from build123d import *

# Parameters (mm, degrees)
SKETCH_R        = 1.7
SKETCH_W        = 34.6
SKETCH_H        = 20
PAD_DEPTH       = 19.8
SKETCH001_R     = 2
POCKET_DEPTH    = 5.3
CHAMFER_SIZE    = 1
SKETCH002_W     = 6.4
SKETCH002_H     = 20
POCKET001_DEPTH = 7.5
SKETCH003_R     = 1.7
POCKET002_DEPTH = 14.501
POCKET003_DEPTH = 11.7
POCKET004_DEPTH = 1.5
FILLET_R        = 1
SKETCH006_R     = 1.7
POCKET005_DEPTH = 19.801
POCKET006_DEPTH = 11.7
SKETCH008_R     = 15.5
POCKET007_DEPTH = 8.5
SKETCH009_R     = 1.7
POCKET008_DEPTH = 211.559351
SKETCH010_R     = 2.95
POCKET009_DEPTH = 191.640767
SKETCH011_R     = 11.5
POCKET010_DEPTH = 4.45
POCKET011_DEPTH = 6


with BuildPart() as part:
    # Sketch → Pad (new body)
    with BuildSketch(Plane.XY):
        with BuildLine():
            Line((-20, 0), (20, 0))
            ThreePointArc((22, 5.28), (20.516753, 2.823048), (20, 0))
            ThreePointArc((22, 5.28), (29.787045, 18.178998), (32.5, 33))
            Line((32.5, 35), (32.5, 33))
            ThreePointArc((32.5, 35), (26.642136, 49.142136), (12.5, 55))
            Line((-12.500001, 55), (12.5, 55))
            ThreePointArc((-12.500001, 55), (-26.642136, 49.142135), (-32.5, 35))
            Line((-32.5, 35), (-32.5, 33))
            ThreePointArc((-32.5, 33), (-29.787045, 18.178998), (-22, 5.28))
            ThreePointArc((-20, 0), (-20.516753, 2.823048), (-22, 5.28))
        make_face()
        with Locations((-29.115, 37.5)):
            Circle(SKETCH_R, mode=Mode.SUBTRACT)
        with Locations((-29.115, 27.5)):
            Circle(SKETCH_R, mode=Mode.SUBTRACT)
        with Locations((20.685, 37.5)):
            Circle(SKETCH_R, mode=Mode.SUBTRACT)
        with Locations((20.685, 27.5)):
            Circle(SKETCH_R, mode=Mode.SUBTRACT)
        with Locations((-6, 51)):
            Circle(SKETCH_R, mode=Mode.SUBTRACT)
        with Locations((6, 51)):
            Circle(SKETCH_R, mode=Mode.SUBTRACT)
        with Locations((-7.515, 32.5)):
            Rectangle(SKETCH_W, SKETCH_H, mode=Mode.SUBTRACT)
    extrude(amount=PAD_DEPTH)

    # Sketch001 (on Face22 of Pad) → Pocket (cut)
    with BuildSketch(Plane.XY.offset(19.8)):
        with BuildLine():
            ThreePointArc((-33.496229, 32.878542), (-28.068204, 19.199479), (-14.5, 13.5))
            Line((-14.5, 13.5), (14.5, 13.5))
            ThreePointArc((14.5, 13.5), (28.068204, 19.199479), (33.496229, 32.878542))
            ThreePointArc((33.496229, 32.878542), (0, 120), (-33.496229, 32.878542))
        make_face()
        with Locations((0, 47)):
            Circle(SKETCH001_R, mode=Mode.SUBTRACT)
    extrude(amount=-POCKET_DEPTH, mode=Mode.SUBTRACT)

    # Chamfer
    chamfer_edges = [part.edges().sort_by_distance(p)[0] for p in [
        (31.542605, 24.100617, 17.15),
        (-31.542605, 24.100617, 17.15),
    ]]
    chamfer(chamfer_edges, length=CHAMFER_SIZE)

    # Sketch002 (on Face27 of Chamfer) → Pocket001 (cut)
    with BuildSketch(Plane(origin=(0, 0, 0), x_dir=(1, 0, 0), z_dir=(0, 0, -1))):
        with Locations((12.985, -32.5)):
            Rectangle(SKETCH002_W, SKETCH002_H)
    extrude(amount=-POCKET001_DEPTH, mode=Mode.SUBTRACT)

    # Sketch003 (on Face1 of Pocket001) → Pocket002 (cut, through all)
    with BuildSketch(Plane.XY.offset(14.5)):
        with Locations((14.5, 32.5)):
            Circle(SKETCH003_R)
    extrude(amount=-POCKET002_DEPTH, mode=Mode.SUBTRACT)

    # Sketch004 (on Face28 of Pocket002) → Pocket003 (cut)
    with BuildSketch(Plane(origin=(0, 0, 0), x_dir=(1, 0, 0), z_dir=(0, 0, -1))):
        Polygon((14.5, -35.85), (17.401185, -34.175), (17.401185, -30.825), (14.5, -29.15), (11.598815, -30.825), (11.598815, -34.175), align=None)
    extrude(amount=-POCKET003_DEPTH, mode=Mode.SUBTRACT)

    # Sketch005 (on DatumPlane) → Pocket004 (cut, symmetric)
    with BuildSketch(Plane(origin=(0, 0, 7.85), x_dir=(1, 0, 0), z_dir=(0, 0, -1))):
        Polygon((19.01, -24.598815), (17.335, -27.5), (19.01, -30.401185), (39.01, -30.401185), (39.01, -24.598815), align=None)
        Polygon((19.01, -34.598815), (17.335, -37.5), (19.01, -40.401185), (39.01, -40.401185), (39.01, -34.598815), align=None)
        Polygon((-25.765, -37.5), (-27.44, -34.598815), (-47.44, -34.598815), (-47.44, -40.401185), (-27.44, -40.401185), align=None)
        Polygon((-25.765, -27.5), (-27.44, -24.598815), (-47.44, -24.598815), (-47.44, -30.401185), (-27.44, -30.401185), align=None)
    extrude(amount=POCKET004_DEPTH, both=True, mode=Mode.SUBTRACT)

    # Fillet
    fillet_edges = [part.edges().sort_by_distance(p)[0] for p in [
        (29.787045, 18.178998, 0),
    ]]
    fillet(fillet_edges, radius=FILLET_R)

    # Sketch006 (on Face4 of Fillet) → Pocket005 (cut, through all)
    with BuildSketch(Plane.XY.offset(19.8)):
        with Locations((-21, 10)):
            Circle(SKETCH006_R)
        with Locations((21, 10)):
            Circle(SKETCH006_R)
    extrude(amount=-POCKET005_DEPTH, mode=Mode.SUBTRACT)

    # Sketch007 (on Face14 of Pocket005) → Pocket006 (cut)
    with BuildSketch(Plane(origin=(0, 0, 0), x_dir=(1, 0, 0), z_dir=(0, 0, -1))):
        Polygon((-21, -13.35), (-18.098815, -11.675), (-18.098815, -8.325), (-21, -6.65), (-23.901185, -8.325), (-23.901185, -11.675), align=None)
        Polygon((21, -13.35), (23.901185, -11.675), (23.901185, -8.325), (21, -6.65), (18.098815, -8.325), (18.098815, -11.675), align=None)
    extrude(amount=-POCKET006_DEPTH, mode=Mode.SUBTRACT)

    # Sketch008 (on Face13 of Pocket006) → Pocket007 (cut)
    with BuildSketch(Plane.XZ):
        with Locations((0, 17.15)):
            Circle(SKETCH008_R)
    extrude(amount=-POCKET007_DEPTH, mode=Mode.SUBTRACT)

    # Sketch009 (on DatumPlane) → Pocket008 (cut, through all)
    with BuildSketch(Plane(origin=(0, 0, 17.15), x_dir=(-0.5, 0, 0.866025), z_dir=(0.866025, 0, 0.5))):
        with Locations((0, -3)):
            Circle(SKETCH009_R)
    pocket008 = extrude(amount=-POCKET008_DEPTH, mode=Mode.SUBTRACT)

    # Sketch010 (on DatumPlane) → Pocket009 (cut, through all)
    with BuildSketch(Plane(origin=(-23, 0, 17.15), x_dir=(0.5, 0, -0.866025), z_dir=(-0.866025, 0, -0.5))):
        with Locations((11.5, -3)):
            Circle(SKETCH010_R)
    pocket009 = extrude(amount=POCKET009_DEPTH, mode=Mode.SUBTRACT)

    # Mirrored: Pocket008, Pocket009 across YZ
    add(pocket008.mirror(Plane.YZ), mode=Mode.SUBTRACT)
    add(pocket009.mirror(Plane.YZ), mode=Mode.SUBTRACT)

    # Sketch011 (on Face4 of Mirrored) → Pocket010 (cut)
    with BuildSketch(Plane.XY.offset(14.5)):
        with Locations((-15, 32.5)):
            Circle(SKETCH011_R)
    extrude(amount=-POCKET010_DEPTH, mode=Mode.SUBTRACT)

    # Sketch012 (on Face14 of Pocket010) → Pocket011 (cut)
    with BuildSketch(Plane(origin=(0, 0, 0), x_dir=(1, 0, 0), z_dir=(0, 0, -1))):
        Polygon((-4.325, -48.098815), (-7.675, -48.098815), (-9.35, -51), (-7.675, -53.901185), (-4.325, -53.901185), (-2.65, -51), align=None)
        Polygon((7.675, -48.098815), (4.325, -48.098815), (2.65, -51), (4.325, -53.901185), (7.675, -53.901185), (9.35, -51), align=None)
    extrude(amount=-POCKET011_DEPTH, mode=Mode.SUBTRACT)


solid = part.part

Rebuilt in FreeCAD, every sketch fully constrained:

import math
import FreeCAD as App
import Part
import Sketcher

V = App.Vector
Q = App.Units.Quantity


def edges_at(feature, points):
    """Names of the edges that pass closest to the given points."""
    edges = feature.Shape.Edges
    near = lambda p: min(range(len(edges)), key=lambda i: edges[i].distToShape(Part.Vertex(*p))[0])
    return sorted({f"Edge{near(p) + 1}" for p in points})

doc = App.newDocument("Part")
body = doc.addObject("PartDesign::Body", "Body")

# Sketch on XY plane
sketch1 = body.newObject("Sketcher::SketchObject", "Sketch")
sketch1.AttachmentSupport = (doc.getObject("XY_Plane"), [""])
sketch1.MapMode = "FlatFace"
sketch1.addGeometry([
    Part.LineSegment(V(-20, 0, 0), V(20, 0, 0)),  # 0
    Part.ArcOfCircle(Part.Circle(V(27.969596, 0.000001, 0), V(0, 0, 1), 7.969596), math.radians(138.507829), math.radians(180.00001)),  # 1
    Part.ArcOfCircle(Part.Circle(V(-9.340403, 33.000001, 0), V(0, 0, 1), 41.840403), math.radians(-41.492159), math.radians(-0.000002)),  # 2
    Part.LineSegment(V(32.5, 33, 0), V(32.5, 35, 0)),  # 3
    Part.ArcOfCircle(Part.Circle(V(12.500001, 35.000001, 0), V(0, 0, 1), 19.999999), math.radians(-0.000004), math.radians(90.000004)),  # 4
    Part.LineSegment(V(12.5, 55, 0), V(-12.500001, 55, 0)),  # 5
    Part.ArcOfCircle(Part.Circle(V(-12.5, 35, 0), V(0, 0, 1), 20), math.radians(90.000004), math.radians(179.999999)),  # 6
    Part.LineSegment(V(-32.5, 35, 0), V(-32.5, 33, 0)),  # 7
    Part.ArcOfCircle(Part.Circle(V(9.340403, 33.000001, 0), V(0, 0, 1), 41.840403), math.radians(-179.999998), math.radians(-138.507841)),  # 8
    Part.ArcOfCircle(Part.Circle(V(-27.969596, 0.000001, 0), V(0, 0, 1), 7.969596), math.radians(-0.00001), math.radians(41.492171)),  # 9
    Part.Circle(V(-29.115, 27.5, 0), V(0, 0, 1), 1.7),  # 10
    Part.Circle(V(-29.115, 37.5, 0), V(0, 0, 1), 1.7),  # 11
    Part.LineSegment(V(9.785, 22.5, 0), V(-24.815, 22.5, 0)),  # 12
    Part.LineSegment(V(-24.815, 22.5, 0), V(-24.815, 42.5, 0)),  # 13
    Part.LineSegment(V(-24.815, 42.5, 0), V(9.785, 42.5, 0)),  # 14
    Part.LineSegment(V(9.785, 42.5, 0), V(9.785, 22.5, 0)),  # 15
    Part.Circle(V(20.685, 27.5, 0), V(0, 0, 1), 1.7),  # 16
    Part.Circle(V(20.685, 37.5, 0), V(0, 0, 1), 1.7),  # 17
    Part.Circle(V(-6, 51, 0), V(0, 0, 1), 1.7),  # 18
    Part.Circle(V(6, 51, 0), V(0, 0, 1), 1.7),  # 19
], False)
sketch1.addConstraint([
    Sketcher.Constraint("Coincident", 0, 2, 1, 2),
    Sketcher.Constraint("Tangent", 1, 1, 2, 1),
    Sketcher.Constraint("Tangent", 2, 2, 3, 1),
    Sketcher.Constraint("Tangent", 3, 2, 4, 1),
    Sketcher.Constraint("Tangent", 4, 2, 5, 1),
    Sketcher.Constraint("Tangent", 5, 2, 6, 1),
    Sketcher.Constraint("Tangent", 6, 2, 7, 1),
    Sketcher.Constraint("Tangent", 7, 2, 8, 1),
    Sketcher.Constraint("Tangent", 8, 2, 9, 2),
    Sketcher.Constraint("Coincident", 9, 1, 0, 1),
    Sketcher.Constraint("Coincident", 12, 2, 13, 1),
    Sketcher.Constraint("Coincident", 13, 2, 14, 1),
    Sketcher.Constraint("Coincident", 14, 2, 15, 1),
    Sketcher.Constraint("Coincident", 15, 2, 12, 1),
    Sketcher.Constraint("Horizontal", 0),
    Sketcher.Constraint("Vertical", 3),
    Sketcher.Constraint("Horizontal", 5),
    Sketcher.Constraint("Vertical", 7),
    Sketcher.Constraint("Horizontal", 12),
    Sketcher.Constraint("Vertical", 13),
    Sketcher.Constraint("Horizontal", 14),
    Sketcher.Constraint("Vertical", 15),
    Sketcher.Constraint("Equal", 4, 6),
    Sketcher.Constraint("Equal", 2, 8),
    Sketcher.Constraint("Equal", 1, 9),
    Sketcher.Constraint("Equal", 10, 11),
    Sketcher.Constraint("Equal", 11, 16),
    Sketcher.Constraint("Equal", 16, 17),
    Sketcher.Constraint("Equal", 17, 18),
    Sketcher.Constraint("Equal", 18, 19),
    Sketcher.Constraint("Symmetric", 1, 3, 9, 3, -1, 1),
    Sketcher.Constraint("Symmetric", 2, 3, 8, 3, -2),
    Sketcher.Constraint("Symmetric", 18, 3, 19, 3, -2),
    Sketcher.Constraint("PointOnObject", 0, 2, -1),
    Sketcher.Constraint("Horizontal", 10, 3, 16, 3),
    Sketcher.Constraint("Horizontal", 11, 3, 17, 3),
    Sketcher.Constraint("Vertical", 10, 3, 11, 3),
    Sketcher.Constraint("Vertical", 16, 3, 17, 3),
    Sketcher.Constraint("Radius", 4, Q("19.999999 mm")),
    Sketcher.Constraint("Diameter", 10, Q("3.4 mm")),
    Sketcher.Constraint("DistanceX", 0, 1, 0, 2, Q("40 mm")),
    Sketcher.Constraint("DistanceX", 5, 2, 5, 1, Q("25.000001 mm")),
    Sketcher.Constraint("DistanceY", 3, 1, 3, 2, Q("2 mm")),
    Sketcher.Constraint("DistanceY", 13, 1, 13, 2, Q("20 mm")),
    Sketcher.Constraint("DistanceX", 12, 2, 12, 1, Q("34.6 mm")),
    Sketcher.Constraint("DistanceY", -1, 1, 2, 3, Q("33.000001 mm")),
    Sketcher.Constraint("DistanceX", 18, 3, -1, 1, Q("6 mm")),
    Sketcher.Constraint("DistanceY", -1, 1, 18, 3, Q("51 mm")),
    Sketcher.Constraint("DistanceX", -1, 1, 1, 1, Q("22 mm")),
    Sketcher.Constraint("DistanceY", 10, 3, 11, 3, Q("10 mm")),
    Sketcher.Constraint("DistanceY", 12, 2, 10, 3, Q("5 mm")),
    Sketcher.Constraint("DistanceY", -1, 1, 10, 3, Q("27.5 mm")),
    Sketcher.Constraint("DistanceX", 10, 3, 12, 2, Q("4.3 mm")),
    Sketcher.Constraint("DistanceX", 14, 2, 17, 3, Q("10.9 mm")),
    Sketcher.Constraint("DistanceX", 10, 3, -1, 1, Q("29.115 mm")),
])
pad1 = body.newObject("PartDesign::Pad", "Pad")
pad1.Profile = sketch1
pad1.Length = 19.8

# Sketch on XY plane
sketch2 = body.newObject("Sketcher::SketchObject", "Sketch001")
sketch2.AttachmentSupport = (doc.getObject("XY_Plane"), [""])
sketch2.MapMode = "FlatFace"
sketch2.AttachmentOffset = App.Placement(V(0, 0, 19.8), App.Rotation())
sketch2.addGeometry([
    Part.ArcOfCircle(Part.Circle(V(-14.500001, 32.499999, 0), V(0, 0, 1), 18.999999), math.radians(178.858403), math.radians(270.000003)),  # 0
    Part.LineSegment(V(-14.5, 13.5, 0), V(14.5, 13.5, 0)),  # 1
    Part.ArcOfCircle(Part.Circle(V(14.500001, 32.499999, 0), V(0, 0, 1), 18.999999), math.radians(-90.000003), math.radians(1.141597)),  # 2
    Part.ArcOfCircle(Part.Circle(V(0, 70, 0), V(0, 0, 1), 50), math.radians(-47.938756), math.radians(227.938756)),  # 3
    Part.Circle(V(0, 47, 0), V(0, 0, 1), 2),  # 4
], False)
sketch2.addConstraint([
    Sketcher.Constraint("Tangent", 0, 2, 1, 1),
    Sketcher.Constraint("Tangent", 1, 2, 2, 1),
    Sketcher.Constraint("Coincident", 2, 2, 3, 1),
    Sketcher.Constraint("Coincident", 3, 2, 0, 1),
    Sketcher.Constraint("Horizontal", 1),
    Sketcher.Constraint("Equal", 0, 2),
    Sketcher.Constraint("Symmetric", 2, 2, 3, 2, -2),
    Sketcher.Constraint("PointOnObject", 4, 3, -2),
    Sketcher.Constraint("Diameter", 4, Q("4 mm")),
    Sketcher.Constraint("Radius", 0, Q("18.999999 mm")),
    Sketcher.Constraint("Radius", 3, Q("50 mm")),
    Sketcher.Constraint("DistanceX", 1, 1, 1, 2, Q("29 mm")),
    Sketcher.Constraint("DistanceY", -1, 1, 3, 3, Q("70 mm")),
    Sketcher.Constraint("DistanceY", -1, 1, 4, 3, Q("47 mm")),
    Sketcher.Constraint("DistanceY", -1, 1, 0, 3, Q("32.499999 mm")),
])
pocket1 = body.newObject("PartDesign::Pocket", "Pocket")
pocket1.Profile = sketch2
pocket1.Length = 5.3
doc.recompute()

chamfer = body.newObject("PartDesign::Chamfer", "Chamfer")
chamfer.Base = (pocket1, edges_at(pocket1, [(31.543, 24.101, 17.15), (-31.543, 24.101, 17.15)]))
chamfer.Size = 1

# Sketch on XY plane
sketch3 = body.newObject("Sketcher::SketchObject", "Sketch002")
sketch3.AttachmentSupport = (doc.getObject("XY_Plane"), [""])
sketch3.MapMode = "FlatFace"
sketch3.addGeometry([
    Part.LineSegment(V(9.785, 22.5, 0), V(9.785, 42.5, 0)),
    Part.LineSegment(V(9.785, 42.5, 0), V(16.185, 42.5, 0)),
    Part.LineSegment(V(16.185, 42.5, 0), V(16.185, 22.5, 0)),
    Part.LineSegment(V(16.185, 22.5, 0), V(9.785, 22.5, 0)),
], False)
sketch3.addConstraint([
    Sketcher.Constraint("Coincident", 0, 2, 1, 1),
    Sketcher.Constraint("Coincident", 1, 2, 2, 1),
    Sketcher.Constraint("Coincident", 2, 2, 3, 1),
    Sketcher.Constraint("Coincident", 3, 2, 0, 1),
    Sketcher.Constraint("Vertical", 0),
    Sketcher.Constraint("Horizontal", 1),
    Sketcher.Constraint("Vertical", 2),
    Sketcher.Constraint("Horizontal", 3),
    Sketcher.Constraint("DistanceY", 0, 1, 0, 2, Q("20 mm")),
    Sketcher.Constraint("DistanceX", 1, 1, 1, 2, Q("6.4 mm")),
    Sketcher.Constraint("DistanceY", -1, 1, 0, 2, Q("42.5 mm")),
    Sketcher.Constraint("DistanceX", -1, 1, 0, 2, Q("9.785 mm")),
])
pocket2 = body.newObject("PartDesign::Pocket", "Pocket001")
pocket2.Profile = sketch3
pocket2.Length = 7.5
pocket2.Reversed = True

# Sketch on XY plane
sketch4 = body.newObject("Sketcher::SketchObject", "Sketch003")
sketch4.AttachmentSupport = (doc.getObject("XY_Plane"), [""])
sketch4.MapMode = "FlatFace"
sketch4.AttachmentOffset = App.Placement(V(0, 0, 14.5), App.Rotation())
sketch4.addGeometry(Part.Circle(V(14.5, 32.5, 0), V(0, 0, 1), 1.7), False)
sketch4.addConstraint([
    Sketcher.Constraint("Diameter", 0, Q("3.4 mm")),
    Sketcher.Constraint("DistanceX", -1, 1, 0, 3, Q("14.5 mm")),
    Sketcher.Constraint("DistanceY", -1, 1, 0, 3, Q("32.5 mm")),
])
pocket3 = body.newObject("PartDesign::Pocket", "Pocket002")
pocket3.Profile = sketch4
pocket3.Type = "ThroughAll"

# Sketch on XY plane
sketch5 = body.newObject("Sketcher::SketchObject", "Sketch004")
sketch5.AttachmentSupport = (doc.getObject("XY_Plane"), [""])
sketch5.MapMode = "FlatFace"
sketch5.addGeometry([
    Part.LineSegment(V(14.5, 35.85, 0), V(17.401185, 34.175, 0)),  # 0
    Part.LineSegment(V(17.401185, 34.175, 0), V(17.401185, 30.825, 0)),  # 1
    Part.LineSegment(V(17.401185, 30.825, 0), V(14.5, 29.15, 0)),  # 2
    Part.LineSegment(V(14.5, 29.15, 0), V(11.598815, 30.825, 0)),  # 3
    Part.LineSegment(V(11.598815, 30.825, 0), V(11.598815, 34.175, 0)),  # 4
    Part.LineSegment(V(11.598815, 34.175, 0), V(14.5, 35.85, 0)),  # 5
], False)
sketch5.addConstraint([
    Sketcher.Constraint("Coincident", 0, 2, 1, 1),
    Sketcher.Constraint("Coincident", 1, 2, 2, 1),
    Sketcher.Constraint("Coincident", 2, 2, 3, 1),
    Sketcher.Constraint("Coincident", 3, 2, 4, 1),
    Sketcher.Constraint("Coincident", 4, 2, 5, 1),
    Sketcher.Constraint("Coincident", 5, 2, 0, 1),
    Sketcher.Constraint("Vertical", 1),
    Sketcher.Constraint("Vertical", 4),
    Sketcher.Constraint("Parallel", 0, 3),
    Sketcher.Constraint("Parallel", 2, 5),
    Sketcher.Constraint("Horizontal", 1, 2, 3, 2),
    Sketcher.Constraint("Horizontal", 0, 2, 4, 2),
    Sketcher.Constraint("Vertical", 2, 2, 5, 2),
    Sketcher.Constraint("Angle", 0, Q("-30.000001 deg")),
    Sketcher.Constraint("DistanceY", 1, 2, 1, 1, Q("3.35 mm")),
    Sketcher.Constraint("DistanceX", -1, 1, 2, 2, Q("14.5 mm")),
    Sketcher.Constraint("DistanceY", 2, 2, 5, 2, Q("6.7 mm")),
    Sketcher.Constraint("DistanceY", -1, 1, 2, 2, Q("29.15 mm")),
])
pocket4 = body.newObject("PartDesign::Pocket", "Pocket003")
pocket4.Profile = sketch5
pocket4.Length = 11.7
pocket4.Reversed = True

# Sketch on XY plane
sketch6 = body.newObject("Sketcher::SketchObject", "Sketch005")
sketch6.AttachmentSupport = (doc.getObject("XY_Plane"), [""])
sketch6.MapMode = "FlatFace"
sketch6.AttachmentOffset = App.Placement(V(0, 0, 7.85), App.Rotation())
sketch6.addGeometry([
    Part.LineSegment(V(19.01, 24.598815, 0), V(17.335, 27.5, 0)),  # 0
    Part.LineSegment(V(17.335, 27.5, 0), V(19.01, 30.401185, 0)),  # 1
    Part.LineSegment(V(19.01, 30.401185, 0), V(39.01, 30.401185, 0)),  # 2
    Part.LineSegment(V(39.01, 30.401185, 0), V(39.01, 24.598815, 0)),  # 3
    Part.LineSegment(V(39.01, 24.598815, 0), V(19.01, 24.598815, 0)),  # 4
    Part.LineSegment(V(19.01, 34.598815, 0), V(17.335, 37.5, 0)),  # 5
    Part.LineSegment(V(17.335, 37.5, 0), V(19.01, 40.401185, 0)),  # 6
    Part.LineSegment(V(19.01, 40.401185, 0), V(39.01, 40.401185, 0)),  # 7
    Part.LineSegment(V(39.01, 40.401185, 0), V(39.01, 34.598815, 0)),  # 8
    Part.LineSegment(V(39.01, 34.598815, 0), V(19.01, 34.598815, 0)),  # 9
    Part.LineSegment(V(-25.765, 37.5, 0), V(-27.44, 34.598815, 0)),  # 10
    Part.LineSegment(V(-27.44, 34.598815, 0), V(-47.44, 34.598815, 0)),  # 11
    Part.LineSegment(V(-47.44, 34.598815, 0), V(-47.44, 40.401185, 0)),  # 12
    Part.LineSegment(V(-47.44, 40.401185, 0), V(-27.44, 40.401185, 0)),  # 13
    Part.LineSegment(V(-27.44, 40.401185, 0), V(-25.765, 37.5, 0)),  # 14
    Part.LineSegment(V(-25.765, 27.5, 0), V(-27.44, 24.598815, 0)),  # 15
    Part.LineSegment(V(-27.44, 24.598815, 0), V(-47.44, 24.598815, 0)),  # 16
    Part.LineSegment(V(-47.44, 24.598815, 0), V(-47.44, 30.401185, 0)),  # 17
    Part.LineSegment(V(-47.44, 30.401185, 0), V(-27.44, 30.401185, 0)),  # 18
    Part.LineSegment(V(-27.44, 30.401185, 0), V(-25.765, 27.5, 0)),  # 19
], False)
sketch6.addConstraint([
    Sketcher.Constraint("Coincident", 0, 2, 1, 1),
    Sketcher.Constraint("Coincident", 1, 2, 2, 1),
    Sketcher.Constraint("Coincident", 2, 2, 3, 1),
    Sketcher.Constraint("Coincident", 3, 2, 4, 1),
    Sketcher.Constraint("Coincident", 4, 2, 0, 1),
    Sketcher.Constraint("Coincident", 5, 2, 6, 1),
    Sketcher.Constraint("Coincident", 6, 2, 7, 1),
    Sketcher.Constraint("Coincident", 7, 2, 8, 1),
    Sketcher.Constraint("Coincident", 8, 2, 9, 1),
    Sketcher.Constraint("Coincident", 9, 2, 5, 1),
    Sketcher.Constraint("Coincident", 10, 2, 11, 1),
    Sketcher.Constraint("Coincident", 11, 2, 12, 1),
    Sketcher.Constraint("Coincident", 12, 2, 13, 1),
    Sketcher.Constraint("Coincident", 13, 2, 14, 1),
    Sketcher.Constraint("Coincident", 14, 2, 10, 1),
    Sketcher.Constraint("Coincident", 15, 2, 16, 1),
    Sketcher.Constraint("Coincident", 16, 2, 17, 1),
    Sketcher.Constraint("Coincident", 17, 2, 18, 1),
    Sketcher.Constraint("Coincident", 18, 2, 19, 1),
    Sketcher.Constraint("Coincident", 19, 2, 15, 1),
    Sketcher.Constraint("Horizontal", 2),
    Sketcher.Constraint("Vertical", 3),
    Sketcher.Constraint("Horizontal", 4),
    Sketcher.Constraint("Horizontal", 7),
    Sketcher.Constraint("Vertical", 8),
    Sketcher.Constraint("Horizontal", 9),
    Sketcher.Constraint("Horizontal", 11),
    Sketcher.Constraint("Vertical", 12),
    Sketcher.Constraint("Horizontal", 13),
    Sketcher.Constraint("Horizontal", 16),
    Sketcher.Constraint("Vertical", 17),
    Sketcher.Constraint("Horizontal", 18),
    Sketcher.Constraint("Parallel", 0, 5),
    Sketcher.Constraint("Parallel", 1, 6),
    Sketcher.Constraint("Parallel", 6, 10),
    Sketcher.Constraint("Parallel", 5, 14),
    Sketcher.Constraint("Parallel", 10, 15),
    Sketcher.Constraint("Parallel", 14, 19),
    Sketcher.Constraint("Horizontal", 9, 2, 10, 2),
    Sketcher.Constraint("Horizontal", 7, 2, 12, 2),
    Sketcher.Constraint("Horizontal", 5, 2, 14, 2),
    Sketcher.Constraint("Horizontal", 4, 2, 15, 2),
    Sketcher.Constraint("Horizontal", 2, 2, 17, 2),
    Sketcher.Constraint("Horizontal", 0, 2, 19, 2),
    Sketcher.Constraint("Vertical", 1, 2, 4, 2),
    Sketcher.Constraint("Vertical", 0, 2, 5, 2),
    Sketcher.Constraint("Vertical", 4, 2, 6, 2),
    Sketcher.Constraint("Vertical", 3, 2, 7, 2),
    Sketcher.Constraint("Vertical", 6, 2, 9, 2),
    Sketcher.Constraint("Vertical", 10, 2, 13, 2),
    Sketcher.Constraint("Vertical", 13, 2, 15, 2),
    Sketcher.Constraint("Vertical", 12, 2, 16, 2),
    Sketcher.Constraint("Equal", 9, 11),
    Sketcher.Constraint("DistanceX", 2, 1, 2, 2, Q("20 mm")),
    Sketcher.Constraint("Angle", 0, Q("120.000001 deg")),
    Sketcher.Constraint("DistanceY", 0, 2, 5, 2, Q("10 mm")),
    Sketcher.Constraint("DistanceY", -1, 1, 0, 2, Q("27.5 mm")),
    Sketcher.Constraint("DistanceX", 14, 2, 5, 2, Q("43.1 mm")),
    Sketcher.Constraint("Distance", 0, Q("3.35 mm")),
    Sketcher.Constraint("DistanceX", -1, 1, 1, 2, Q("19.01 mm")),
])
pocket5 = body.newObject("PartDesign::Pocket", "Pocket004")
pocket5.Profile = sketch6
pocket5.Length = 3
pocket5.Midplane = True
doc.recompute()

fillet = body.newObject("PartDesign::Fillet", "Fillet")
fillet.Base = (pocket5, edges_at(pocket5, [(29.787, 18.179, 0)]))
fillet.Radius = 1

# Sketch on XY plane
sketch7 = body.newObject("Sketcher::SketchObject", "Sketch006")
sketch7.AttachmentSupport = (doc.getObject("XY_Plane"), [""])
sketch7.MapMode = "FlatFace"
sketch7.AttachmentOffset = App.Placement(V(0, 0, 19.8), App.Rotation())
sketch7.addGeometry([
    Part.Circle(V(-21, 10, 0), V(0, 0, 1), 1.7),
    Part.Circle(V(21, 10, 0), V(0, 0, 1), 1.7),
], False)
sketch7.addConstraint([
    Sketcher.Constraint("Equal", 0, 1),
    Sketcher.Constraint("Symmetric", 0, 3, 1, 3, -2),
    Sketcher.Constraint("Diameter", 0, Q("3.4 mm")),
    Sketcher.Constraint("DistanceX", 0, 3, -1, 1, Q("21 mm")),
    Sketcher.Constraint("DistanceY", -1, 1, 0, 3, Q("10 mm")),
])
pocket6 = body.newObject("PartDesign::Pocket", "Pocket005")
pocket6.Profile = sketch7
pocket6.Type = "ThroughAll"

# Sketch on XY plane
sketch8 = body.newObject("Sketcher::SketchObject", "Sketch007")
sketch8.AttachmentSupport = (doc.getObject("XY_Plane"), [""])
sketch8.MapMode = "FlatFace"
sketch8.addGeometry([
    Part.LineSegment(V(-21, 13.35, 0), V(-18.098815, 11.675, 0)),  # 0
    Part.LineSegment(V(-18.098815, 11.675, 0), V(-18.098815, 8.325, 0)),  # 1
    Part.LineSegment(V(-18.098815, 8.325, 0), V(-21, 6.65, 0)),  # 2
    Part.LineSegment(V(-21, 6.65, 0), V(-23.901185, 8.325, 0)),  # 3
    Part.LineSegment(V(-23.901185, 8.325, 0), V(-23.901185, 11.675, 0)),  # 4
    Part.LineSegment(V(-23.901185, 11.675, 0), V(-21, 13.35, 0)),  # 5
    Part.LineSegment(V(21, 13.35, 0), V(23.901185, 11.675, 0)),  # 6
    Part.LineSegment(V(23.901185, 11.675, 0), V(23.901185, 8.325, 0)),  # 7
    Part.LineSegment(V(23.901185, 8.325, 0), V(21, 6.65, 0)),  # 8
    Part.LineSegment(V(21, 6.65, 0), V(18.098815, 8.325, 0)),  # 9
    Part.LineSegment(V(18.098815, 8.325, 0), V(18.098815, 11.675, 0)),  # 10
    Part.LineSegment(V(18.098815, 11.675, 0), V(21, 13.35, 0)),  # 11
], False)
sketch8.addConstraint([
    Sketcher.Constraint("Coincident", 0, 2, 1, 1),
    Sketcher.Constraint("Coincident", 1, 2, 2, 1),
    Sketcher.Constraint("Coincident", 2, 2, 3, 1),
    Sketcher.Constraint("Coincident", 3, 2, 4, 1),
    Sketcher.Constraint("Coincident", 4, 2, 5, 1),
    Sketcher.Constraint("Coincident", 5, 2, 0, 1),
    Sketcher.Constraint("Coincident", 6, 2, 7, 1),
    Sketcher.Constraint("Coincident", 7, 2, 8, 1),
    Sketcher.Constraint("Coincident", 8, 2, 9, 1),
    Sketcher.Constraint("Coincident", 9, 2, 10, 1),
    Sketcher.Constraint("Coincident", 10, 2, 11, 1),
    Sketcher.Constraint("Coincident", 11, 2, 6, 1),
    Sketcher.Constraint("Vertical", 1),
    Sketcher.Constraint("Vertical", 4),
    Sketcher.Constraint("Vertical", 7),
    Sketcher.Constraint("Vertical", 10),
    Sketcher.Constraint("Symmetric", 4, 2, 6, 2, -2),
    Sketcher.Constraint("Symmetric", 2, 2, 8, 2, -2),
    Sketcher.Constraint("Symmetric", 1, 2, 9, 2, -2),
    Sketcher.Constraint("Symmetric", 5, 2, 11, 2, -2),
    Sketcher.Constraint("Parallel", 0, 3),
    Sketcher.Constraint("Parallel", 2, 5),
    Sketcher.Constraint("Parallel", 3, 6),
    Sketcher.Constraint("Parallel", 5, 8),
    Sketcher.Constraint("Parallel", 8, 11),
    Sketcher.Constraint("Horizontal", 1, 2, 3, 2),
    Sketcher.Constraint("Horizontal", 0, 2, 4, 2),
    Sketcher.Constraint("Angle", 0, Q("-30.000001 deg")),
    Sketcher.Constraint("DistanceX", 2, 2, -1, 1, Q("21 mm")),
    Sketcher.Constraint("DistanceY", 1, 2, 1, 1, Q("3.35 mm")),
    Sketcher.Constraint("DistanceY", 2, 2, 5, 2, Q("6.7 mm")),
    Sketcher.Constraint("DistanceY", -1, 1, 2, 2, Q("6.65 mm")),
])
pocket7 = body.newObject("PartDesign::Pocket", "Pocket006")
pocket7.Profile = sketch8
pocket7.Length = 11.7
pocket7.Reversed = True

# Sketch on XZ plane
sketch9 = body.newObject("Sketcher::SketchObject", "Sketch008")
sketch9.AttachmentSupport = (doc.getObject("XZ_Plane"), [""])
sketch9.MapMode = "FlatFace"
sketch9.addGeometry(Part.Circle(V(0, 17.15, 0), V(0, 0, 1), 15.5), False)
sketch9.addConstraint([
    Sketcher.Constraint("PointOnObject", 0, 3, -2),
    Sketcher.Constraint("Diameter", 0, Q("31 mm")),
    Sketcher.Constraint("DistanceY", -1, 1, 0, 3, Q("17.15 mm")),
])
pocket8 = body.newObject("PartDesign::Pocket", "Pocket007")
pocket8.Profile = sketch9
pocket8.Length = 8.5

# Sketch on an angled plane
sketch10 = body.newObject("Sketcher::SketchObject", "Sketch009")
sketch10.Placement = App.Placement(V(0, 0, 17.15), App.Rotation(V(-0.500000175, 0, 0.866025303), V(0, -1, 0), V(0.866025303, 0, 0.500000175), "ZXY"))
sketch10.addGeometry(Part.Circle(V(0, -3, 0), V(0, 0, 1), 1.7), False)
sketch10.addConstraint([
    Sketcher.Constraint("PointOnObject", 0, 3, -2),
    Sketcher.Constraint("Diameter", 0, Q("3.4 mm")),
    Sketcher.Constraint("DistanceY", 0, 3, -1, 1, Q("3 mm")),
])
pocket9 = body.newObject("PartDesign::Pocket", "Pocket008")
pocket9.Profile = sketch10
pocket9.Type = "ThroughAll"

# Sketch on an angled plane
sketch11 = body.newObject("Sketcher::SketchObject", "Sketch010")
sketch11.Placement = App.Placement(V(-23, 0, 17.15), App.Rotation(V(0.500000175, 0, -0.866025303), V(0, -1, 0), V(-0.866025303, 0, -0.500000175), "ZXY"))
sketch11.addGeometry(Part.Circle(V(11.5, -3, 0), V(0, 0, 1), 2.95), False)
sketch11.addConstraint([
    Sketcher.Constraint("Diameter", 0, Q("5.9 mm")),
    Sketcher.Constraint("DistanceY", 0, 3, -1, 1, Q("3 mm")),
    Sketcher.Constraint("DistanceX", -1, 1, 0, 3, Q("11.5 mm")),
])
pocket10 = body.newObject("PartDesign::Pocket", "Pocket009")
pocket10.Profile = sketch11
pocket10.Type = "ThroughAll"
pocket10.Reversed = True
doc.recompute()

mirrored = body.newObject("PartDesign::Mirrored", "Mirrored")
mirrored.Originals = [pocket9, pocket10]
mirrored.MirrorPlane = (doc.getObject("YZ_Plane"), [""])
body.Tip = mirrored

# Sketch on XY plane
sketch12 = body.newObject("Sketcher::SketchObject", "Sketch011")
sketch12.AttachmentSupport = (doc.getObject("XY_Plane"), [""])
sketch12.MapMode = "FlatFace"
sketch12.AttachmentOffset = App.Placement(V(0, 0, 14.5), App.Rotation())
sketch12.addGeometry(Part.Circle(V(-15, 32.5, 0), V(0, 0, 1), 11.5), False)
sketch12.addConstraint([
    Sketcher.Constraint("Diameter", 0, Q("23 mm")),
    Sketcher.Constraint("DistanceX", 0, 3, -1, 1, Q("15 mm")),
    Sketcher.Constraint("DistanceY", -1, 1, 0, 3, Q("32.5 mm")),
])
pocket11 = body.newObject("PartDesign::Pocket", "Pocket010")
pocket11.Profile = sketch12
pocket11.Length = 4.45

# Sketch on XY plane
sketch13 = body.newObject("Sketcher::SketchObject", "Sketch012")
sketch13.AttachmentSupport = (doc.getObject("XY_Plane"), [""])
sketch13.MapMode = "FlatFace"
sketch13.addGeometry([
    Part.LineSegment(V(-4.325, 48.098815, 0), V(-7.675, 48.098815, 0)),  # 0
    Part.LineSegment(V(-7.675, 48.098815, 0), V(-9.35, 51, 0)),  # 1
    Part.LineSegment(V(-9.35, 51, 0), V(-7.675, 53.901185, 0)),  # 2
    Part.LineSegment(V(-7.675, 53.901185, 0), V(-4.325, 53.901185, 0)),  # 3
    Part.LineSegment(V(-4.325, 53.901185, 0), V(-2.65, 51, 0)),  # 4
    Part.LineSegment(V(-2.65, 51, 0), V(-4.325, 48.098815, 0)),  # 5
    Part.LineSegment(V(7.675, 48.098815, 0), V(4.325, 48.098815, 0)),  # 6
    Part.LineSegment(V(4.325, 48.098815, 0), V(2.65, 51, 0)),  # 7
    Part.LineSegment(V(2.65, 51, 0), V(4.325, 53.901185, 0)),  # 8
    Part.LineSegment(V(4.325, 53.901185, 0), V(7.675, 53.901185, 0)),  # 9
    Part.LineSegment(V(7.675, 53.901185, 0), V(9.35, 51, 0)),  # 10
    Part.LineSegment(V(9.35, 51, 0), V(7.675, 48.098815, 0)),  # 11
], False)
sketch13.addConstraint([
    Sketcher.Constraint("Coincident", 0, 2, 1, 1),
    Sketcher.Constraint("Coincident", 1, 2, 2, 1),
    Sketcher.Constraint("Coincident", 2, 2, 3, 1),
    Sketcher.Constraint("Coincident", 3, 2, 4, 1),
    Sketcher.Constraint("Coincident", 4, 2, 5, 1),
    Sketcher.Constraint("Coincident", 5, 2, 0, 1),
    Sketcher.Constraint("Coincident", 6, 2, 7, 1),
    Sketcher.Constraint("Coincident", 7, 2, 8, 1),
    Sketcher.Constraint("Coincident", 8, 2, 9, 1),
    Sketcher.Constraint("Coincident", 9, 2, 10, 1),
    Sketcher.Constraint("Coincident", 10, 2, 11, 1),
    Sketcher.Constraint("Coincident", 11, 2, 6, 1),
    Sketcher.Constraint("Horizontal", 0),
    Sketcher.Constraint("Horizontal", 3),
    Sketcher.Constraint("Horizontal", 6),
    Sketcher.Constraint("Horizontal", 9),
    Sketcher.Constraint("Symmetric", 5, 2, 6, 2, -2),
    Sketcher.Constraint("Symmetric", 4, 2, 7, 2, -2),
    Sketcher.Constraint("Symmetric", 3, 2, 8, 2, -2),
    Sketcher.Constraint("Symmetric", 1, 2, 10, 2, -2),
    Sketcher.Constraint("Parallel", 1, 4),
    Sketcher.Constraint("Parallel", 2, 5),
    Sketcher.Constraint("Parallel", 4, 7),
    Sketcher.Constraint("Parallel", 7, 10),
    Sketcher.Constraint("Parallel", 8, 11),
    Sketcher.Constraint("Horizontal", 1, 2, 4, 2),
    Sketcher.Constraint("Vertical", 0, 2, 2, 2),
    Sketcher.Constraint("Angle", 1, Q("120.000001 deg")),
    Sketcher.Constraint("DistanceY", -1, 1, 1, 2, Q("51 mm")),
    Sketcher.Constraint("DistanceX", 0, 2, 6, 2, Q("12 mm")),
    Sketcher.Constraint("DistanceX", 0, 2, 0, 1, Q("3.35 mm")),
    Sketcher.Constraint("DistanceX", 1, 2, 4, 2, Q("6.7 mm")),
])
pocket12 = body.newObject("PartDesign::Pocket", "Pocket011")
pocket12.Profile = sketch13
pocket12.Length = 6
pocket12.Reversed = True

doc.recompute()
